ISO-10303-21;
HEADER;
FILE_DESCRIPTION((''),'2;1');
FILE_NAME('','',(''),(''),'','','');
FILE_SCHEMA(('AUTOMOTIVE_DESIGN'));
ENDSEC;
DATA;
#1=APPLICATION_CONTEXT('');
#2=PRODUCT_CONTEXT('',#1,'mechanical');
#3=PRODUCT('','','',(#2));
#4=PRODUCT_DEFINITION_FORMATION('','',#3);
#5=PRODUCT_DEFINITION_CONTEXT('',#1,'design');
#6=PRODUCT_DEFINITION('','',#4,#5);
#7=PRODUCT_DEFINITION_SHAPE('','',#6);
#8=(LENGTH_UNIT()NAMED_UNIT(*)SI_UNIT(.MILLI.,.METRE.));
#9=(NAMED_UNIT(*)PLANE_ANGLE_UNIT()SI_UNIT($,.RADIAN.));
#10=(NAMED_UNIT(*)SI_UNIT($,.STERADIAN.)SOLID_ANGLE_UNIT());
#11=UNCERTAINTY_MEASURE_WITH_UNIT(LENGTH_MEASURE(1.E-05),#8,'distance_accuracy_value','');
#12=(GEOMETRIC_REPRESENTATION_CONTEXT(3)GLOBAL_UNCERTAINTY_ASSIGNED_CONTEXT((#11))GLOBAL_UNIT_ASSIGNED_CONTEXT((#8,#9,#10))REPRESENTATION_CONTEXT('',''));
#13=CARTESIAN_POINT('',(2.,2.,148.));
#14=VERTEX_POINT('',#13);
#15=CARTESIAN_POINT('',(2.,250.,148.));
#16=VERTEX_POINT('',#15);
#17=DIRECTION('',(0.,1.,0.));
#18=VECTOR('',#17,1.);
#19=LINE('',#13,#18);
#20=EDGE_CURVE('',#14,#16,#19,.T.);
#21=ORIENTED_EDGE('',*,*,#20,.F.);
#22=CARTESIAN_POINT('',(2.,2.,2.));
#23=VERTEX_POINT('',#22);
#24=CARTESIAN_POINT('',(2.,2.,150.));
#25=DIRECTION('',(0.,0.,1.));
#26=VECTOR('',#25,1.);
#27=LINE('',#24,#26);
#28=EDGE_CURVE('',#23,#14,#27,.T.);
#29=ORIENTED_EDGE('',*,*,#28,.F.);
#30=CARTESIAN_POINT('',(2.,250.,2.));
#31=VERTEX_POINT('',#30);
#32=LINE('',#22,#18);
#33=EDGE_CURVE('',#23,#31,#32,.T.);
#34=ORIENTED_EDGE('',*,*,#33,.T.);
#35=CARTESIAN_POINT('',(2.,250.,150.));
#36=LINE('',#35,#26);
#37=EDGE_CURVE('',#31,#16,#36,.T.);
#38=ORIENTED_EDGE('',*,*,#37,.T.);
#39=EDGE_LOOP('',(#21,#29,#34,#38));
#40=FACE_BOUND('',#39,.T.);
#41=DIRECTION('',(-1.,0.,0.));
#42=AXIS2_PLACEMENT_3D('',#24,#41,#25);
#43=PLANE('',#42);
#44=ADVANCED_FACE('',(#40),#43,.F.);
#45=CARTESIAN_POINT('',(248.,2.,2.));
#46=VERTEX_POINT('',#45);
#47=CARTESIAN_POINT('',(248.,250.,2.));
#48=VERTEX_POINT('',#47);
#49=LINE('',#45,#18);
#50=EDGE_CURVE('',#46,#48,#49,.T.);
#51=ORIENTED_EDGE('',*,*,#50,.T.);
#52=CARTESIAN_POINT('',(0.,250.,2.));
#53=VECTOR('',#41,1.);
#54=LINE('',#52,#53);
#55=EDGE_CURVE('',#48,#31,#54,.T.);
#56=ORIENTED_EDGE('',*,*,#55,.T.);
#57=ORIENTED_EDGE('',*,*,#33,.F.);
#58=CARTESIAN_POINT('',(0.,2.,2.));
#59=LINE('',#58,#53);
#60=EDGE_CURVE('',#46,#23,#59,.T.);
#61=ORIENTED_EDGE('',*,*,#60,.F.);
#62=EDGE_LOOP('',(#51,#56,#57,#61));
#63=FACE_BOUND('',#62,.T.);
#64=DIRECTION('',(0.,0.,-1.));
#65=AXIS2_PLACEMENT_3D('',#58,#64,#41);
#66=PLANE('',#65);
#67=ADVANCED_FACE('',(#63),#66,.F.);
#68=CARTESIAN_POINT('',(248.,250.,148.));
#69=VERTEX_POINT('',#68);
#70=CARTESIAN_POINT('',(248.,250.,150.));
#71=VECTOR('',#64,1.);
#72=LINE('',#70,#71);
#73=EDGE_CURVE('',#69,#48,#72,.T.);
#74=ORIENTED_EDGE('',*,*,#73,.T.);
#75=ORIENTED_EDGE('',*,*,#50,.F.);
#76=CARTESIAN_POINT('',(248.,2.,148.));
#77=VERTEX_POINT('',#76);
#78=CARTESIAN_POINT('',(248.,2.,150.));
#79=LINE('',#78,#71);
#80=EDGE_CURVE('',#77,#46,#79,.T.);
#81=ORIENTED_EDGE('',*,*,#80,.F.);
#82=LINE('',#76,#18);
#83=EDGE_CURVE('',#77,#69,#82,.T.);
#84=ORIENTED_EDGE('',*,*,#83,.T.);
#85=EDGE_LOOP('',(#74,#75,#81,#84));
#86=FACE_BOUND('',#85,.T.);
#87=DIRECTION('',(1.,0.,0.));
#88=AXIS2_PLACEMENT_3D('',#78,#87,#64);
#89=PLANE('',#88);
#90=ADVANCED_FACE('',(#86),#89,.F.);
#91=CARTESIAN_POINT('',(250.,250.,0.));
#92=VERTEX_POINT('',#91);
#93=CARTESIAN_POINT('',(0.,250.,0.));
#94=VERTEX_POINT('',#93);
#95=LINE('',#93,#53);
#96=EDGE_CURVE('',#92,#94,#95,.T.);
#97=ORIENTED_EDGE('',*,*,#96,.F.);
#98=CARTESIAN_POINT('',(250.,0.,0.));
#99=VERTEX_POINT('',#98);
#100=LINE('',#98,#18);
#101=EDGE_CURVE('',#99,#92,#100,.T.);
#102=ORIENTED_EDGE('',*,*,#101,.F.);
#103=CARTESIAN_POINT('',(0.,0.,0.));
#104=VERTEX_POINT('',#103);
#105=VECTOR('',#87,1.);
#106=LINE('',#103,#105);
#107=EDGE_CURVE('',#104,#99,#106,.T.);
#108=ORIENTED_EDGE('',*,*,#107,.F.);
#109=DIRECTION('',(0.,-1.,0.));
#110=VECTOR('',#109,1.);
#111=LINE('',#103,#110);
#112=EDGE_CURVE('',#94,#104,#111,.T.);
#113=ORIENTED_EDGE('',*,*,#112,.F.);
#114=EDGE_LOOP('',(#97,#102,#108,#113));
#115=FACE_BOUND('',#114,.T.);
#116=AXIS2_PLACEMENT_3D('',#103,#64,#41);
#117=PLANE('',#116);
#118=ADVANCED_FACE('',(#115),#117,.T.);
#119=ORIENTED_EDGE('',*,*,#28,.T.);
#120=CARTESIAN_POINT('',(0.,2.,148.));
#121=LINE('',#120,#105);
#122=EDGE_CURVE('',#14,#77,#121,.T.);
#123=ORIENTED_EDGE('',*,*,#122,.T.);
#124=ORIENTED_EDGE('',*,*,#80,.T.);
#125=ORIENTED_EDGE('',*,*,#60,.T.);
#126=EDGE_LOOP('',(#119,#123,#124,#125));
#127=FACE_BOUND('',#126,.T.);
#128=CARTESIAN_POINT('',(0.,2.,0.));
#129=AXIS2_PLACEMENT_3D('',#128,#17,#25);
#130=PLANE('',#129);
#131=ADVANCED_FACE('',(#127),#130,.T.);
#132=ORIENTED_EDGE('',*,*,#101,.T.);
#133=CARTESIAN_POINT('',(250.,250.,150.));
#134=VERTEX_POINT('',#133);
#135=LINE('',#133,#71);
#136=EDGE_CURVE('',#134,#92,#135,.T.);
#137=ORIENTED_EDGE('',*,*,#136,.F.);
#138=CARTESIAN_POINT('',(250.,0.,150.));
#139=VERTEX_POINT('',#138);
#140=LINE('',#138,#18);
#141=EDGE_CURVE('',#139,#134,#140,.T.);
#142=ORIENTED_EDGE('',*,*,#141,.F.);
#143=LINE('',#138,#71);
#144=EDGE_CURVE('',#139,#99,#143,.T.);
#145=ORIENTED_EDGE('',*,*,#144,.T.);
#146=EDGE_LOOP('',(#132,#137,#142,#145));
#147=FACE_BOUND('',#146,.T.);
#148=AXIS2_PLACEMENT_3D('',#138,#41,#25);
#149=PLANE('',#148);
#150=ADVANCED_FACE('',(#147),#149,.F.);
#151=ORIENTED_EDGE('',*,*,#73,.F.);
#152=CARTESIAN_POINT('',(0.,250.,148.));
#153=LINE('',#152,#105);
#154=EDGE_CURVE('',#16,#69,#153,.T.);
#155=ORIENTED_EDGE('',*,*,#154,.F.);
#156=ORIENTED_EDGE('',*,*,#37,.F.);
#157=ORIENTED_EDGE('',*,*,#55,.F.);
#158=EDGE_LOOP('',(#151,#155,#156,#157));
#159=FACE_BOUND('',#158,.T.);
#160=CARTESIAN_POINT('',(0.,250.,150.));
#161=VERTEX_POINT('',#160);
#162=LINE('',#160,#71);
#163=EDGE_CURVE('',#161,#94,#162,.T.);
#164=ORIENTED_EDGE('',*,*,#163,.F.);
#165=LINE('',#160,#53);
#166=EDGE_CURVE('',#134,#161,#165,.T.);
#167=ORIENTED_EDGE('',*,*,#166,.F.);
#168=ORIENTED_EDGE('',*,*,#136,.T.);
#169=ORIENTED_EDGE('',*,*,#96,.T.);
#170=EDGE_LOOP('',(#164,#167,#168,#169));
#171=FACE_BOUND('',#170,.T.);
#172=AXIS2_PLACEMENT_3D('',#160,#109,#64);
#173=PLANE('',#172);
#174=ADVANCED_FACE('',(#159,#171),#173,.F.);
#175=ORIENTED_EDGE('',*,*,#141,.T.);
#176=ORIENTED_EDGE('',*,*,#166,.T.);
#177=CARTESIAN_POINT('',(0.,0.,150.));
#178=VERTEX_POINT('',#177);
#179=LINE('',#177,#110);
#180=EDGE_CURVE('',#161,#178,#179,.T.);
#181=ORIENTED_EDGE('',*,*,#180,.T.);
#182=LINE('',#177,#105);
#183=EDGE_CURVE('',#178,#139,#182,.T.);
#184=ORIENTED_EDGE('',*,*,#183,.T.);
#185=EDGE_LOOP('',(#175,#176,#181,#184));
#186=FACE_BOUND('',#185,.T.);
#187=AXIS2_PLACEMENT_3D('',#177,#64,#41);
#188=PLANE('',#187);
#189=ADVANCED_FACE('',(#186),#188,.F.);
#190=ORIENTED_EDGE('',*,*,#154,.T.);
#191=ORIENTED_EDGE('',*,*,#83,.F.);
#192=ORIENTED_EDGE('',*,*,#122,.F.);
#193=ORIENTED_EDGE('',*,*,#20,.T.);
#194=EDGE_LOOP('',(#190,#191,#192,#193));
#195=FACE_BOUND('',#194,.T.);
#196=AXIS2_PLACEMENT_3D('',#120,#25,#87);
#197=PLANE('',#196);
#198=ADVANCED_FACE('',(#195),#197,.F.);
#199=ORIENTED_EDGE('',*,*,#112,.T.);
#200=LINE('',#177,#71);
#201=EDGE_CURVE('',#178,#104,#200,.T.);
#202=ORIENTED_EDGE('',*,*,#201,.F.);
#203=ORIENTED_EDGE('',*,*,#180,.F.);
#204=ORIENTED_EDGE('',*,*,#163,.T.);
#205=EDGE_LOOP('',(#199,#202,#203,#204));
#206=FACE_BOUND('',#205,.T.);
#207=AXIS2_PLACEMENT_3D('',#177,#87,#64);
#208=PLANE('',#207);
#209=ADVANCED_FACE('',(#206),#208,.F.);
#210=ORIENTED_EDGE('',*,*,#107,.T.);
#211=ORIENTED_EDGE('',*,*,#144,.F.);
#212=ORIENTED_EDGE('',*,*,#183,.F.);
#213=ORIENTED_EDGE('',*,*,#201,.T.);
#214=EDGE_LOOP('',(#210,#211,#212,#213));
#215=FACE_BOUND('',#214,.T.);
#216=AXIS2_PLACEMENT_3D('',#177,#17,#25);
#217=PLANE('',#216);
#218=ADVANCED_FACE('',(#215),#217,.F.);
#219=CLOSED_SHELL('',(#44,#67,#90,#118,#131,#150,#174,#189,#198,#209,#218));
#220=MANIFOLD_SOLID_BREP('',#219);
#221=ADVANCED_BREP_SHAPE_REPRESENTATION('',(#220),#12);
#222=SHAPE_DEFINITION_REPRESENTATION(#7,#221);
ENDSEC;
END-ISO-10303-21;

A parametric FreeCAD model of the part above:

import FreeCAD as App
import Part
import Sketcher

V = App.Vector
Q = App.Units.Quantity

doc = App.newDocument("Part")
body = doc.addObject("PartDesign::Body", "Body")

# Sketch on XY plane
sketch1 = body.newObject("Sketcher::SketchObject", "Sketch")
sketch1.AttachmentSupport = (doc.getObject("XY_Plane"), [""])
sketch1.MapMode = "FlatFace"
sketch1.addGeometry([
    Part.LineSegment(V(0, 250, 0), V(0, 0, 0)),
    Part.LineSegment(V(0, 0, 0), V(250, 0, 0)),
    Part.LineSegment(V(250, 0, 0), V(250, 250, 0)),
    Part.LineSegment(V(250, 250, 0), V(0, 250, 0)),
], False)
sketch1.addConstraint([
    Sketcher.Constraint("Coincident", 0, 2, 1, 1),
    Sketcher.Constraint("Coincident", 1, 2, 2, 1),
    Sketcher.Constraint("Coincident", 2, 2, 3, 1),
    Sketcher.Constraint("Coincident", 3, 2, 0, 1),
    Sketcher.Constraint("Vertical", 0),
    Sketcher.Constraint("Horizontal", 1),
    Sketcher.Constraint("Vertical", 2),
    Sketcher.Constraint("Horizontal", 3),
    Sketcher.Constraint("Coincident", 0, 2, -1, 1),
    Sketcher.Constraint("Equal", 3, 0),
    Sketcher.Constraint("DistanceX", 1, 1, 1, 2, Q("250 mm")),
])
pad1 = body.newObject("PartDesign::Pad", "Pad")
pad1.Profile = sketch1
pad1.Length = 150

# Sketch on XZ plane
sketch2 = body.newObject("Sketcher::SketchObject", "Sketch001")
sketch2.AttachmentSupport = (doc.getObject("XZ_Plane"), [""])
sketch2.MapMode = "FlatFace"
sketch2.AttachmentOffset = App.Placement(V(0, 0, -250), App.Rotation())
sketch2.addGeometry([
    Part.LineSegment(V(2, 2, 0), V(2, 148, 0)),
    Part.LineSegment(V(2, 148, 0), V(248, 148, 0)),
    Part.LineSegment(V(248, 148, 0), V(248, 2, 0)),
    Part.LineSegment(V(248, 2, 0), V(2, 2, 0)),
], False)
sketch2.addConstraint([
    Sketcher.Constraint("Coincident", 0, 2, 1, 1),
    Sketcher.Constraint("Coincident", 1, 2, 2, 1),
    Sketcher.Constraint("Coincident", 2, 2, 3, 1),
    Sketcher.Constraint("Coincident", 3, 2, 0, 1),
    Sketcher.Constraint("Vertical", 0),
    Sketcher.Constraint("Horizontal", 1),
    Sketcher.Constraint("Vertical", 2),
    Sketcher.Constraint("Horizontal", 3),
    Sketcher.Constraint("DistanceX", 1, 1, 1, 2, Q("246 mm")),
    Sketcher.Constraint("DistanceY", 0, 1, 0, 2, Q("146 mm")),
    Sketcher.Constraint("DistanceX", -1, 1, 0, 2, Q("2 mm")),
    Sketcher.Constraint("DistanceY", -1, 1, 0, 2, Q("148 mm")),
])
pocket1 = body.newObject("PartDesign::Pocket", "Pocket")
pocket1.Profile = sketch2
pocket1.Length = 248
pocket1.Reversed = True

doc.recompute()
